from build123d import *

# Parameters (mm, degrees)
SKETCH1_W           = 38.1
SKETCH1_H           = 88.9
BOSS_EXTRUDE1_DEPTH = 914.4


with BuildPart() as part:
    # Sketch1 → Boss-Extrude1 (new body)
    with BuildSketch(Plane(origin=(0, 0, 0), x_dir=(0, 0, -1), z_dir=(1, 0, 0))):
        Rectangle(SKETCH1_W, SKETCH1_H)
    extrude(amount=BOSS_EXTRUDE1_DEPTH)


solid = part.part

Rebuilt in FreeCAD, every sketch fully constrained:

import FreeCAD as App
import Part
import Sketcher
from FreeCAD import Vector
Q = App.Units.Quantity

doc = App.newDocument("Part")
params = doc.addObject("Spreadsheet::Sheet", "Params")
for row, (alias, value) in enumerate([
    ("sketch1_width", "3.5 in"),
    ("sketch1_height", "1.5 in"),
    ("pad1_length", "36 in"),
], start=1):
    params.set(f"A{row}", alias)
    params.set(f"B{row}", "=" + value)
    params.setAlias(f"B{row}", alias)

body = doc.addObject("PartDesign::Body", "Body")

# Sketch on YZ plane
sketch1 = body.newObject("Sketcher::SketchObject", "Sketch")
sketch1.AttachmentSupport = (doc.getObject("YZ_Plane"), [""])
sketch1.MapMode = "FlatFace"
sketch1.addGeometry([
    Part.LineSegment(Vector(44, 19, 0), Vector(-44, 19, 0)),
    Part.LineSegment(Vector(-44, 19, 0), Vector(-44, -19, 0)),
    Part.LineSegment(Vector(-44, -19, 0), Vector(44, -19, 0)),
    Part.LineSegment(Vector(44, -19, 0), Vector(44, 19, 0)),
], False)
sketch1.addConstraint([
    Sketcher.Constraint("Coincident", 0, 2, 1, 1),
    Sketcher.Constraint("Coincident", 1, 2, 2, 1),
    Sketcher.Constraint("Coincident", 2, 2, 3, 1),
    Sketcher.Constraint("Coincident", 3, 2, 0, 1),
    Sketcher.Constraint("Horizontal", 0),
    Sketcher.Constraint("Vertical", 1),
    Sketcher.Constraint("Horizontal", 2),
    Sketcher.Constraint("Vertical", 3),
    Sketcher.Constraint("Symmetric", 0, 2, 2, 2, -1, 1),
    Sketcher.Constraint("DistanceX", 0, 2, 0, 1, Q("3.5 in")),
    Sketcher.Constraint("DistanceY", 1, 2, 1, 1, Q("1.5 in")),
])
sketch1.setExpression("Constraints[9]", "Params.sketch1_width")
sketch1.setExpression("Constraints[10]", "Params.sketch1_height")
pad1 = body.newObject("PartDesign::Pad", "Pad")
pad1.Profile = sketch1
pad1.setExpression("Length", "Params.pad1_length")

doc.recompute()
